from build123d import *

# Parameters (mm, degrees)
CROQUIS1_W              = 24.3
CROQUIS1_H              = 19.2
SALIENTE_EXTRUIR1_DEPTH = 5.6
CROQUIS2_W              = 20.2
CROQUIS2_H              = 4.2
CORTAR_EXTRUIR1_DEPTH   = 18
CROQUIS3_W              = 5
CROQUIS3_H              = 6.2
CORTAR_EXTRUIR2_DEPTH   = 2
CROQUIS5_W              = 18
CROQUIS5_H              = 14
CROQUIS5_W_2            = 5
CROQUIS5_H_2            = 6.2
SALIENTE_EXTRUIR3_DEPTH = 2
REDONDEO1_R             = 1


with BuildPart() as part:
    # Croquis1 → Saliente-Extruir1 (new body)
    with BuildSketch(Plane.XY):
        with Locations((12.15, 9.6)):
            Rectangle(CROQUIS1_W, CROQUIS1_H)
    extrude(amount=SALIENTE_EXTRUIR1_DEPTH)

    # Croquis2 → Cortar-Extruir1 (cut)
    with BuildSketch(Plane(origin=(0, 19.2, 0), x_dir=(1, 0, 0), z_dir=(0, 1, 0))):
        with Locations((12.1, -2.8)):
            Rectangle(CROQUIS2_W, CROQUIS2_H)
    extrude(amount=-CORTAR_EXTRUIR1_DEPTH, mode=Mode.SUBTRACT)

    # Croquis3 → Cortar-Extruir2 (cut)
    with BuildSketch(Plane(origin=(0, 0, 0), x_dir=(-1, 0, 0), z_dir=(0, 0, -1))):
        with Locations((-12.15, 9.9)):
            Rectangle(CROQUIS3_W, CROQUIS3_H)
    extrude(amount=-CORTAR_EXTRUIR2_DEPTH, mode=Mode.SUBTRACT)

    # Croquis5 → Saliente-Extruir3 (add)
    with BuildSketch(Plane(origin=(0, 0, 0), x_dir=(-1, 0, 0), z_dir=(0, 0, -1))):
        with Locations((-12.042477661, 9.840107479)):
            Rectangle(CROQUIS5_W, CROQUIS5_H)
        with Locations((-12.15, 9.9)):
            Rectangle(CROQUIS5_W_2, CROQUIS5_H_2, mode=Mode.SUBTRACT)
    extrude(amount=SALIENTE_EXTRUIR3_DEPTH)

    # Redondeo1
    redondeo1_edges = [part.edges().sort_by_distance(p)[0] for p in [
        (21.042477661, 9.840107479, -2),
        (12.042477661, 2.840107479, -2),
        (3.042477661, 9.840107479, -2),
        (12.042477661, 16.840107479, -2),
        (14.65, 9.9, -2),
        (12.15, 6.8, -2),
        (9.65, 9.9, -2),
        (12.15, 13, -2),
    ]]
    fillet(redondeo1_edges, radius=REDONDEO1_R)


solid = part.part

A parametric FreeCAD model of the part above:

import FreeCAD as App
import Part
import Sketcher
from FreeCAD import Vector


def edges_at(feature, points):
    """Names of the edges that pass closest to the given points."""
    edges = feature.Shape.Edges
    near = lambda p: min(range(len(edges)), key=lambda i: edges[i].distToShape(Part.Vertex(*p))[0])
    return sorted({f"Edge{near(p) + 1}" for p in points})

doc = App.newDocument("Part")
body = doc.addObject("PartDesign::Body", "Body")

# Sketch on XY plane
sketch1 = body.newObject("Sketcher::SketchObject", "Sketch")
sketch1.AttachmentSupport = (doc.getObject("XY_Plane"), [""])
sketch1.MapMode = "FlatFace"
sketch1.addGeometry([
    Part.LineSegment(Vector(0, 19, 0), Vector(0, 0, 0)),
    Part.LineSegment(Vector(0, 0, 0), Vector(24, 0, 0)),
    Part.LineSegment(Vector(24, 0, 0), Vector(24, 19, 0)),
    Part.LineSegment(Vector(24, 19, 0), Vector(0, 19, 0)),
], False)
sketch1.addConstraint([
    Sketcher.Constraint("Coincident", 0, 2, 1, 1),
    Sketcher.Constraint("Coincident", 1, 2, 2, 1),
    Sketcher.Constraint("Coincident", 2, 2, 3, 1),
    Sketcher.Constraint("Coincident", 3, 2, 0, 1),
    Sketcher.Constraint("Vertical", 0),
    Sketcher.Constraint("Horizontal", 1),
    Sketcher.Constraint("Vertical", 2),
    Sketcher.Constraint("Horizontal", 3),
    Sketcher.Constraint("Coincident", 0, 2, -1, 1),
    Sketcher.Constraint("DistanceX", 1, 1, 1, 2, 24.3),
    Sketcher.Constraint("DistanceY", 0, 2, 0, 1, 19.2),
])
pad1 = body.newObject("PartDesign::Pad", "Pad")
pad1.Profile = sketch1
pad1.Length = 5.6

# Sketch on XZ plane
sketch2 = body.newObject("Sketcher::SketchObject", "Sketch001")
sketch2.AttachmentSupport = (doc.getObject("XZ_Plane"), [""])
sketch2.MapMode = "FlatFace"
sketch2.AttachmentOffset = App.Placement(Vector(0, 0, -19.2), App.Rotation())
sketch2.addGeometry([
    Part.LineSegment(Vector(2, 0.7, 0), Vector(2, 4.9, 0)),
    Part.LineSegment(Vector(2, 4.9, 0), Vector(22.2, 4.9, 0)),
    Part.LineSegment(Vector(22.2, 4.9, 0), Vector(22.2, 0.7, 0)),
    Part.LineSegment(Vector(22.2, 0.7, 0), Vector(2, 0.7, 0)),
], False)
sketch2.addConstraint([
    Sketcher.Constraint("Coincident", 0, 2, 1, 1),
    Sketcher.Constraint("Coincident", 1, 2, 2, 1),
    Sketcher.Constraint("Coincident", 2, 2, 3, 1),
    Sketcher.Constraint("Coincident", 3, 2, 0, 1),
    Sketcher.Constraint("Vertical", 0),
    Sketcher.Constraint("Horizontal", 1),
    Sketcher.Constraint("Vertical", 2),
    Sketcher.Constraint("Horizontal", 3),
    Sketcher.Constraint("DistanceX", 1, 1, 1, 2, 20.2),
    Sketcher.Constraint("DistanceY", 0, 1, 0, 2, 4.2),
    Sketcher.Constraint("DistanceX", -1, 1, 0, 2, 2.0),
    Sketcher.Constraint("DistanceY", -1, 1, 0, 2, 4.9),
])
pocket1 = body.newObject("PartDesign::Pocket", "Pocket")
pocket1.Profile = sketch2
pocket1.Length = 18
pocket1.Reversed = True

# Sketch on XY plane
sketch3 = body.newObject("Sketcher::SketchObject", "Sketch002")
sketch3.AttachmentSupport = (doc.getObject("XY_Plane"), [""])
sketch3.MapMode = "FlatFace"
sketch3.addGeometry([
    Part.LineSegment(Vector(15, 13, 0), Vector(15, 7, 0)),
    Part.LineSegment(Vector(15, 7, 0), Vector(10, 7, 0)),
    Part.LineSegment(Vector(10, 7, 0), Vector(10, 13, 0)),
    Part.LineSegment(Vector(10, 13, 0), Vector(15, 13, 0)),
], False)
sketch3.addConstraint([
    Sketcher.Constraint("Coincident", 0, 2, 1, 1),
    Sketcher.Constraint("Coincident", 1, 2, 2, 1),
    Sketcher.Constraint("Coincident", 2, 2, 3, 1),
    Sketcher.Constraint("Coincident", 3, 2, 0, 1),
    Sketcher.Constraint("Vertical", 0),
    Sketcher.Constraint("Horizontal", 1),
    Sketcher.Constraint("Vertical", 2),
    Sketcher.Constraint("Horizontal", 3),
    Sketcher.Constraint("DistanceX", 1, 2, 1, 1, 5.0),
    Sketcher.Constraint("DistanceY", 0, 2, 0, 1, 6.2),
    Sketcher.Constraint("DistanceY", -1, 1, 2, 2, 13.0),
    Sketcher.Constraint("DistanceX", -1, 1, 0, 2, 14.65),
])
pocket2 = body.newObject("PartDesign::Pocket", "Pocket001")
pocket2.Profile = sketch3
pocket2.Length = 2
pocket2.Reversed = True

# Sketch on XY plane
sketch4 = body.newObject("Sketcher::SketchObject", "Sketch003")
sketch4.AttachmentSupport = (doc.getObject("XY_Plane"), [""])
sketch4.MapMode = "FlatFace"
sketch4.addGeometry([
    Part.LineSegment(Vector(21, 17, 0), Vector(21, 3, 0)),  # 0
    Part.LineSegment(Vector(21, 3, 0), Vector(3, 3, 0)),  # 1
    Part.LineSegment(Vector(3, 3, 0), Vector(3, 17, 0)),  # 2
    Part.LineSegment(Vector(3, 17, 0), Vector(21, 17, 0)),  # 3
    Part.LineSegment(Vector(10, 7, 0), Vector(15, 7, 0)),  # 4
    Part.LineSegment(Vector(15, 7, 0), Vector(15, 13, 0)),  # 5
    Part.LineSegment(Vector(15, 13, 0), Vector(10, 13, 0)),  # 6
    Part.LineSegment(Vector(10, 13, 0), Vector(10, 7, 0)),  # 7
], False)
sketch4.addConstraint([
    Sketcher.Constraint("Coincident", 0, 2, 1, 1),
    Sketcher.Constraint("Coincident", 1, 2, 2, 1),
    Sketcher.Constraint("Coincident", 2, 2, 3, 1),
    Sketcher.Constraint("Coincident", 3, 2, 0, 1),
    Sketcher.Constraint("Coincident", 4, 2, 5, 1),
    Sketcher.Constraint("Coincident", 5, 2, 6, 1),
    Sketcher.Constraint("Coincident", 6, 2, 7, 1),
    Sketcher.Constraint("Coincident", 7, 2, 4, 1),
    Sketcher.Constraint("Vertical", 0),
    Sketcher.Constraint("Horizontal", 1),
    Sketcher.Constraint("Vertical", 2),
    Sketcher.Constraint("Horizontal", 3),
    Sketcher.Constraint("Horizontal", 4),
    Sketcher.Constraint("Vertical", 5),
    Sketcher.Constraint("Horizontal", 6),
    Sketcher.Constraint("Vertical", 7),
    Sketcher.Constraint("DistanceX", 1, 2, 1, 1, 18.0),
    Sketcher.Constraint("DistanceX", 4, 1, 4, 2, 5.0),
    Sketcher.Constraint("DistanceY", 0, 2, 0, 1, 14.0),
    Sketcher.Constraint("DistanceY", 5, 1, 5, 2, 6.2),
    Sketcher.Constraint("DistanceY", -1, 1, 5, 2, 13.0),
    Sketcher.Constraint("DistanceX", -1, 1, 4, 2, 14.65),
    Sketcher.Constraint("DistanceX", -1, 1, 0, 2, 21.042478),
    Sketcher.Constraint("DistanceY", -1, 1, 0, 2, 2.840107),
])
pad2 = body.newObject("PartDesign::Pad", "Pad001")
pad2.Profile = sketch4
pad2.Length = 2
pad2.Reversed = True
doc.recompute()

fillet = body.newObject("PartDesign::Fillet", "Fillet")
fillet.Base = (pad2, edges_at(pad2, [
    (21.042, 9.84, -2),
    (12.042, 2.84, -2),
    (3.042, 9.84, -2),
    (12.042, 16.84, -2),
    (14.65, 9.9, -2),
    (12.15, 6.8, -2),
    (9.65, 9.9, -2),
    (12.15, 13, -2),
]))
fillet.Radius = 1

doc.recompute()
